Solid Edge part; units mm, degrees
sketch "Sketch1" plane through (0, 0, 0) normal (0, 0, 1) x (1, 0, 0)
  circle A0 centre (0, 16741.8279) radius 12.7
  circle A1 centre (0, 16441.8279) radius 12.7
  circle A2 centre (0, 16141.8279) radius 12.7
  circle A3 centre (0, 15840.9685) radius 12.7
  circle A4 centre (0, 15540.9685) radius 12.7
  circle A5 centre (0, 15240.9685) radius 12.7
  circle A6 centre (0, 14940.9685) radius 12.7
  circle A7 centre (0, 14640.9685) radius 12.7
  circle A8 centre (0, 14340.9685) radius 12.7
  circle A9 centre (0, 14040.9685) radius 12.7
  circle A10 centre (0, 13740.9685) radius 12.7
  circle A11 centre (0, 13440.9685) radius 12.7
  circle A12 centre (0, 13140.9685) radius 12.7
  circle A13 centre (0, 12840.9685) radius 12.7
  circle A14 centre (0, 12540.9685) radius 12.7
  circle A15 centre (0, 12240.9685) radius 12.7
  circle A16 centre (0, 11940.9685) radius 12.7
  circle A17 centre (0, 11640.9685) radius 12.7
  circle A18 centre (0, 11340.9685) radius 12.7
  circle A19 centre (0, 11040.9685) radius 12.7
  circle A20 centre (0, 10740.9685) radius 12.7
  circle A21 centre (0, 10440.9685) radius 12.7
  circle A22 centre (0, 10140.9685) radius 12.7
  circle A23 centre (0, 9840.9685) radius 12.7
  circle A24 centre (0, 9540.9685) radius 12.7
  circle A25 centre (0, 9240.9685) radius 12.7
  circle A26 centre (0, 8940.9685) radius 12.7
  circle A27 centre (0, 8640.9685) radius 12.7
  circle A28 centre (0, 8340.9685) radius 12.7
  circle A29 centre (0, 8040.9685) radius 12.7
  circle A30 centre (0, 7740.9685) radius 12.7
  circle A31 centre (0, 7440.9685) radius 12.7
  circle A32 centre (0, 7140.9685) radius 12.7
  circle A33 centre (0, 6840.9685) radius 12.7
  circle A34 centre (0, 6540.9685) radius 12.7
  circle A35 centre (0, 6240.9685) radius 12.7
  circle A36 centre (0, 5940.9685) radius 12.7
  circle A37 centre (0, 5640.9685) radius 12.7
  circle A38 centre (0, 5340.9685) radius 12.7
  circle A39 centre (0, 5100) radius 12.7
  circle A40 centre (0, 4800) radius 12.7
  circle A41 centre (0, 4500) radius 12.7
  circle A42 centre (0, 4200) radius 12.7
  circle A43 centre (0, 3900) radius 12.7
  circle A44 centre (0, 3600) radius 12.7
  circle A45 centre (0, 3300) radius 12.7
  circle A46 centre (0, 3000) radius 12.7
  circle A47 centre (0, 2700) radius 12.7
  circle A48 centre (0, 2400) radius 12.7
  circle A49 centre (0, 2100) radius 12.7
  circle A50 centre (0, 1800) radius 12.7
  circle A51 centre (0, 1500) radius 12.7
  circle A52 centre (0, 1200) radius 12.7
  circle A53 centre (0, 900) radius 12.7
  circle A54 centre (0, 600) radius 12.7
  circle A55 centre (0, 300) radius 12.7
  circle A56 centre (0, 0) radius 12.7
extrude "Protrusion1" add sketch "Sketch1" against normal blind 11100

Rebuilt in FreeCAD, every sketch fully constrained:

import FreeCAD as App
import Part
import Sketcher

doc = App.newDocument("Part")
params = doc.addObject("Spreadsheet::Sheet", "Params")
for row, (alias, value) in enumerate([
    ("sketch1_diameter", "25.4 mm"),
    ("pad1_length", "11100 mm"),
], start=1):
    params.set(f"A{row}", alias)
    params.set(f"B{row}", "=" + value)
    params.setAlias(f"B{row}", alias)

body = doc.addObject("PartDesign::Body", "Body")
body.AllowCompound = True

sketch1 = body.newObject("Sketcher::SketchObject", "Sketch")
sketch1.AttachmentSupport = (doc.getObject("XY_Plane"), [""])
sketch1.MapMode = "FlatFace"
sketch1.addGeometry(Part.Circle(App.Vector(0, 16742, 0), App.Vector(0, 0, 1), 13), False)
sketch1.addGeometry(Part.Circle(App.Vector(0, 16442, 0), App.Vector(0, 0, 1), 13), False)
sketch1.addGeometry(Part.Circle(App.Vector(0, 16142, 0), App.Vector(0, 0, 1), 13), False)
sketch1.addGeometry(Part.Circle(App.Vector(0, 15841, 0), App.Vector(0, 0, 1), 13), False)
sketch1.addGeometry(Part.Circle(App.Vector(0, 15541, 0), App.Vector(0, 0, 1), 13), False)
sketch1.addGeometry(Part.Circle(App.Vector(0, 15241, 0), App.Vector(0, 0, 1), 13), False)
sketch1.addGeometry(Part.Circle(App.Vector(0, 14941, 0), App.Vector(0, 0, 1), 13), False)
sketch1.addGeometry(Part.Circle(App.Vector(0, 14641, 0), App.Vector(0, 0, 1), 13), False)
sketch1.addGeometry(Part.Circle(App.Vector(0, 14341, 0), App.Vector(0, 0, 1), 13), False)
sketch1.addGeometry(Part.Circle(App.Vector(0, 14041, 0), App.Vector(0, 0, 1), 13), False)
sketch1.addGeometry(Part.Circle(App.Vector(0, 13741, 0), App.Vector(0, 0, 1), 13), False)
sketch1.addGeometry(Part.Circle(App.Vector(0, 13441, 0), App.Vector(0, 0, 1), 13), False)
sketch1.addGeometry(Part.Circle(App.Vector(0, 13141, 0), App.Vector(0, 0, 1), 13), False)
sketch1.addGeometry(Part.Circle(App.Vector(0, 12841, 0), App.Vector(0, 0, 1), 13), False)
sketch1.addGeometry(Part.Circle(App.Vector(0, 12541, 0), App.Vector(0, 0, 1), 13), False)
sketch1.addGeometry(Part.Circle(App.Vector(0, 12241, 0), App.Vector(0, 0, 1), 13), False)
sketch1.addGeometry(Part.Circle(App.Vector(0, 11941, 0), App.Vector(0, 0, 1), 13), False)
sketch1.addGeometry(Part.Circle(App.Vector(0, 11641, 0), App.Vector(0, 0, 1), 13), False)
sketch1.addGeometry(Part.Circle(App.Vector(0, 11341, 0), App.Vector(0, 0, 1), 13), False)
sketch1.addGeometry(Part.Circle(App.Vector(0, 11041, 0), App.Vector(0, 0, 1), 13), False)
sketch1.addGeometry(Part.Circle(App.Vector(0, 10741, 0), App.Vector(0, 0, 1), 13), False)
sketch1.addGeometry(Part.Circle(App.Vector(0, 10441, 0), App.Vector(0, 0, 1), 13), False)
sketch1.addGeometry(Part.Circle(App.Vector(0, 10141, 0), App.Vector(0, 0, 1), 13), False)
sketch1.addGeometry(Part.Circle(App.Vector(0, 9841, 0), App.Vector(0, 0, 1), 13), False)
sketch1.addGeometry(Part.Circle(App.Vector(0, 9541, 0), App.Vector(0, 0, 1), 13), False)
sketch1.addGeometry(Part.Circle(App.Vector(0, 9241, 0), App.Vector(0, 0, 1), 13), False)
sketch1.addGeometry(Part.Circle(App.Vector(0, 8941, 0), App.Vector(0, 0, 1), 13), False)
sketch1.addGeometry(Part.Circle(App.Vector(0, 8641, 0), App.Vector(0, 0, 1), 13), False)
sketch1.addGeometry(Part.Circle(App.Vector(0, 8341, 0), App.Vector(0, 0, 1), 13), False)
sketch1.addGeometry(Part.Circle(App.Vector(0, 8041, 0), App.Vector(0, 0, 1), 13), False)
sketch1.addGeometry(Part.Circle(App.Vector(0, 7741, 0), App.Vector(0, 0, 1), 13), False)
sketch1.addGeometry(Part.Circle(App.Vector(0, 7441, 0), App.Vector(0, 0, 1), 13), False)
sketch1.addGeometry(Part.Circle(App.Vector(0, 7141, 0), App.Vector(0, 0, 1), 13), False)
sketch1.addGeometry(Part.Circle(App.Vector(0, 6841, 0), App.Vector(0, 0, 1), 13), False)
sketch1.addGeometry(Part.Circle(App.Vector(0, 6541, 0), App.Vector(0, 0, 1), 13), False)
sketch1.addGeometry(Part.Circle(App.Vector(0, 6241, 0), App.Vector(0, 0, 1), 13), False)
sketch1.addGeometry(Part.Circle(App.Vector(0, 5941, 0), App.Vector(0, 0, 1), 13), False)
sketch1.addGeometry(Part.Circle(App.Vector(0, 5641, 0), App.Vector(0, 0, 1), 13), False)
sketch1.addGeometry(Part.Circle(App.Vector(0, 5341, 0), App.Vector(0, 0, 1), 13), False)
sketch1.addGeometry(Part.Circle(App.Vector(0, 5100, 0), App.Vector(0, 0, 1), 13), False)
sketch1.addGeometry(Part.Circle(App.Vector(0, 4800, 0), App.Vector(0, 0, 1), 13), False)
sketch1.addGeometry(Part.Circle(App.Vector(0, 4500, 0), App.Vector(0, 0, 1), 13), False)
sketch1.addGeometry(Part.Circle(App.Vector(0, 4200, 0), App.Vector(0, 0, 1), 13), False)
sketch1.addGeometry(Part.Circle(App.Vector(0, 3900, 0), App.Vector(0, 0, 1), 13), False)
sketch1.addGeometry(Part.Circle(App.Vector(0, 3600, 0), App.Vector(0, 0, 1), 13), False)
sketch1.addGeometry(Part.Circle(App.Vector(0, 3300, 0), App.Vector(0, 0, 1), 13), False)
sketch1.addGeometry(Part.Circle(App.Vector(0, 3000, 0), App.Vector(0, 0, 1), 13), False)
sketch1.addGeometry(Part.Circle(App.Vector(0, 2700, 0), App.Vector(0, 0, 1), 13), False)
sketch1.addGeometry(Part.Circle(App.Vector(0, 2400, 0), App.Vector(0, 0, 1), 13), False)
sketch1.addGeometry(Part.Circle(App.Vector(0, 2100, 0), App.Vector(0, 0, 1), 13), False)
sketch1.addGeometry(Part.Circle(App.Vector(0, 1800, 0), App.Vector(0, 0, 1), 13), False)
sketch1.addGeometry(Part.Circle(App.Vector(0, 1500, 0), App.Vector(0, 0, 1), 13), False)
sketch1.addGeometry(Part.Circle(App.Vector(0, 1200, 0), App.Vector(0, 0, 1), 13), False)
sketch1.addGeometry(Part.Circle(App.Vector(0, 900, 0), App.Vector(0, 0, 1), 13), False)
sketch1.addGeometry(Part.Circle(App.Vector(0, 600, 0), App.Vector(0, 0, 1), 13), False)
sketch1.addGeometry(Part.Circle(App.Vector(0, 300, 0), App.Vector(0, 0, 1), 13), False)
sketch1.addGeometry(Part.Circle(App.Vector(0, 0, 0), App.Vector(0, 0, 1), 13), False)
sketch1.addConstraint(Sketcher.Constraint("Coincident", 56, 3, -1, 1))
sketch1.addConstraint(Sketcher.Constraint("Equal", 0, 1))
sketch1.addConstraint(Sketcher.Constraint("Equal", 1, 2))
sketch1.addConstraint(Sketcher.Constraint("Equal", 2, 3))
sketch1.addConstraint(Sketcher.Constraint("Equal", 3, 4))
sketch1.addConstraint(Sketcher.Constraint("Equal", 4, 5))
sketch1.addConstraint(Sketcher.Constraint("Equal", 5, 6))
sketch1.addConstraint(Sketcher.Constraint("Equal", 6, 7))
sketch1.addConstraint(Sketcher.Constraint("Equal", 7, 8))
sketch1.addConstraint(Sketcher.Constraint("Equal", 8, 9))
sketch1.addConstraint(Sketcher.Constraint("Equal", 9, 10))
sketch1.addConstraint(Sketcher.Constraint("Equal", 10, 11))
sketch1.addConstraint(Sketcher.Constraint("Equal", 11, 12))
sketch1.addConstraint(Sketcher.Constraint("Equal", 12, 13))
sketch1.addConstraint(Sketcher.Constraint("Equal", 13, 14))
sketch1.addConstraint(Sketcher.Constraint("Equal", 14, 15))
sketch1.addConstraint(Sketcher.Constraint("Equal", 15, 16))
sketch1.addConstraint(Sketcher.Constraint("Equal", 16, 17))
sketch1.addConstraint(Sketcher.Constraint("Equal", 17, 18))
sketch1.addConstraint(Sketcher.Constraint("Equal", 18, 19))
sketch1.addConstraint(Sketcher.Constraint("Equal", 19, 20))
sketch1.addConstraint(Sketcher.Constraint("Equal", 20, 21))
sketch1.addConstraint(Sketcher.Constraint("Equal", 21, 22))
sketch1.addConstraint(Sketcher.Constraint("Equal", 22, 23))
sketch1.addConstraint(Sketcher.Constraint("Equal", 23, 24))
sketch1.addConstraint(Sketcher.Constraint("Equal", 24, 25))
sketch1.addConstraint(Sketcher.Constraint("Equal", 25, 26))
sketch1.addConstraint(Sketcher.Constraint("Equal", 26, 27))
sketch1.addConstraint(Sketcher.Constraint("Equal", 27, 28))
sketch1.addConstraint(Sketcher.Constraint("Equal", 28, 29))
sketch1.addConstraint(Sketcher.Constraint("Equal", 29, 30))
sketch1.addConstraint(Sketcher.Constraint("Equal", 30, 31))
sketch1.addConstraint(Sketcher.Constraint("Equal", 31, 32))
sketch1.addConstraint(Sketcher.Constraint("Equal", 32, 33))
sketch1.addConstraint(Sketcher.Constraint("Equal", 33, 34))
sketch1.addConstraint(Sketcher.Constraint("Equal", 34, 35))
sketch1.addConstraint(Sketcher.Constraint("Equal", 35, 36))
sketch1.addConstraint(Sketcher.Constraint("Equal", 36, 37))
sketch1.addConstraint(Sketcher.Constraint("Equal", 37, 38))
sketch1.addConstraint(Sketcher.Constraint("Equal", 38, 39))
sketch1.addConstraint(Sketcher.Constraint("Equal", 39, 40))
sketch1.addConstraint(Sketcher.Constraint("Equal", 40, 41))
sketch1.addConstraint(Sketcher.Constraint("Equal", 41, 42))
sketch1.addConstraint(Sketcher.Constraint("Equal", 42, 43))
sketch1.addConstraint(Sketcher.Constraint("Equal", 43, 44))
sketch1.addConstraint(Sketcher.Constraint("Equal", 44, 45))
sketch1.addConstraint(Sketcher.Constraint("Equal", 45, 46))
sketch1.addConstraint(Sketcher.Constraint("Equal", 46, 47))
sketch1.addConstraint(Sketcher.Constraint("Equal", 47, 48))
sketch1.addConstraint(Sketcher.Constraint("Equal", 48, 49))
sketch1.addConstraint(Sketcher.Constraint("Equal", 49, 50))
sketch1.addConstraint(Sketcher.Constraint("Equal", 50, 51))
sketch1.addConstraint(Sketcher.Constraint("Equal", 51, 52))
sketch1.addConstraint(Sketcher.Constraint("Equal", 52, 53))
sketch1.addConstraint(Sketcher.Constraint("Equal", 53, 54))
sketch1.addConstraint(Sketcher.Constraint("Equal", 54, 55))
sketch1.addConstraint(Sketcher.Constraint("Equal", 55, 56))
sketch1.addConstraint(Sketcher.Constraint("PointOnObject", 0, 3, -2))
sketch1.addConstraint(Sketcher.Constraint("PointOnObject", 1, 3, -2))
sketch1.addConstraint(Sketcher.Constraint("PointOnObject", 2, 3, -2))
sketch1.addConstraint(Sketcher.Constraint("PointOnObject", 3, 3, -2))
sketch1.addConstraint(Sketcher.Constraint("PointOnObject", 4, 3, -2))
sketch1.addConstraint(Sketcher.Constraint("PointOnObject", 5, 3, -2))
sketch1.addConstraint(Sketcher.Constraint("PointOnObject", 6, 3, -2))
sketch1.addConstraint(Sketcher.Constraint("PointOnObject", 7, 3, -2))
sketch1.addConstraint(Sketcher.Constraint("PointOnObject", 8, 3, -2))
sketch1.addConstraint(Sketcher.Constraint("PointOnObject", 9, 3, -2))
sketch1.addConstraint(Sketcher.Constraint("PointOnObject", 10, 3, -2))
sketch1.addConstraint(Sketcher.Constraint("PointOnObject", 11, 3, -2))
sketch1.addConstraint(Sketcher.Constraint("PointOnObject", 12, 3, -2))
sketch1.addConstraint(Sketcher.Constraint("PointOnObject", 13, 3, -2))
sketch1.addConstraint(Sketcher.Constraint("PointOnObject", 14, 3, -2))
sketch1.addConstraint(Sketcher.Constraint("PointOnObject", 15, 3, -2))
sketch1.addConstraint(Sketcher.Constraint("PointOnObject", 16, 3, -2))
sketch1.addConstraint(Sketcher.Constraint("PointOnObject", 17, 3, -2))
sketch1.addConstraint(Sketcher.Constraint("PointOnObject", 18, 3, -2))
sketch1.addConstraint(Sketcher.Constraint("PointOnObject", 19, 3, -2))
sketch1.addConstraint(Sketcher.Constraint("PointOnObject", 20, 3, -2))
sketch1.addConstraint(Sketcher.Constraint("PointOnObject", 21, 3, -2))
sketch1.addConstraint(Sketcher.Constraint("PointOnObject", 22, 3, -2))
sketch1.addConstraint(Sketcher.Constraint("PointOnObject", 23, 3, -2))
sketch1.addConstraint(Sketcher.Constraint("PointOnObject", 24, 3, -2))
sketch1.addConstraint(Sketcher.Constraint("PointOnObject", 25, 3, -2))
sketch1.addConstraint(Sketcher.Constraint("PointOnObject", 26, 3, -2))
sketch1.addConstraint(Sketcher.Constraint("PointOnObject", 27, 3, -2))
sketch1.addConstraint(Sketcher.Constraint("PointOnObject", 28, 3, -2))
sketch1.addConstraint(Sketcher.Constraint("PointOnObject", 29, 3, -2))
sketch1.addConstraint(Sketcher.Constraint("PointOnObject", 30, 3, -2))
sketch1.addConstraint(Sketcher.Constraint("PointOnObject", 31, 3, -2))
sketch1.addConstraint(Sketcher.Constraint("PointOnObject", 32, 3, -2))
sketch1.addConstraint(Sketcher.Constraint("PointOnObject", 33, 3, -2))
sketch1.addConstraint(Sketcher.Constraint("PointOnObject", 34, 3, -2))
sketch1.addConstraint(Sketcher.Constraint("PointOnObject", 35, 3, -2))
sketch1.addConstraint(Sketcher.Constraint("PointOnObject", 36, 3, -2))
sketch1.addConstraint(Sketcher.Constraint("PointOnObject", 37, 3, -2))
sketch1.addConstraint(Sketcher.Constraint("PointOnObject", 38, 3, -2))
sketch1.addConstraint(Sketcher.Constraint("PointOnObject", 39, 3, -2))
sketch1.addConstraint(Sketcher.Constraint("PointOnObject", 40, 3, -2))
sketch1.addConstraint(Sketcher.Constraint("PointOnObject", 41, 3, -2))
sketch1.addConstraint(Sketcher.Constraint("PointOnObject", 42, 3, -2))
sketch1.addConstraint(Sketcher.Constraint("PointOnObject", 43, 3, -2))
sketch1.addConstraint(Sketcher.Constraint("PointOnObject", 44, 3, -2))
sketch1.addConstraint(Sketcher.Constraint("PointOnObject", 45, 3, -2))
sketch1.addConstraint(Sketcher.Constraint("PointOnObject", 46, 3, -2))
sketch1.addConstraint(Sketcher.Constraint("PointOnObject", 47, 3, -2))
sketch1.addConstraint(Sketcher.Constraint("PointOnObject", 48, 3, -2))
sketch1.addConstraint(Sketcher.Constraint("PointOnObject", 49, 3, -2))
sketch1.addConstraint(Sketcher.Constraint("PointOnObject", 50, 3, -2))
sketch1.addConstraint(Sketcher.Constraint("PointOnObject", 51, 3, -2))
sketch1.addConstraint(Sketcher.Constraint("PointOnObject", 52, 3, -2))
sketch1.addConstraint(Sketcher.Constraint("PointOnObject", 53, 3, -2))
sketch1.addConstraint(Sketcher.Constraint("PointOnObject", 54, 3, -2))
sketch1.addConstraint(Sketcher.Constraint("PointOnObject", 55, 3, -2))
sketch1.addConstraint(Sketcher.Constraint("Diameter", 0, 25.4))
sketch1.addConstraint(Sketcher.Constraint("DistanceY", -1, 1, 39, 3, 5100.0))
sketch1.addConstraint(Sketcher.Constraint("DistanceY", -1, 1, 40, 3, 4800.0))
sketch1.addConstraint(Sketcher.Constraint("DistanceY", -1, 1, 41, 3, 4500.0))
sketch1.addConstraint(Sketcher.Constraint("DistanceY", -1, 1, 42, 3, 4200.0))
sketch1.addConstraint(Sketcher.Constraint("DistanceY", -1, 1, 43, 3, 3900.0))
sketch1.addConstraint(Sketcher.Constraint("DistanceY", -1, 1, 44, 3, 3600.0))
sketch1.addConstraint(Sketcher.Constraint("DistanceY", -1, 1, 45, 3, 3300.0))
sketch1.addConstraint(Sketcher.Constraint("DistanceY", -1, 1, 46, 3, 3000.0))
sketch1.addConstraint(Sketcher.Constraint("DistanceY", -1, 1, 47, 3, 2700.0))
sketch1.addConstraint(Sketcher.Constraint("DistanceY", -1, 1, 48, 3, 2400.0))
sketch1.addConstraint(Sketcher.Constraint("DistanceY", -1, 1, 49, 3, 2100.0))
sketch1.addConstraint(Sketcher.Constraint("DistanceY", -1, 1, 50, 3, 1800.0))
sketch1.addConstraint(Sketcher.Constraint("DistanceY", -1, 1, 51, 3, 1500.0))
sketch1.addConstraint(Sketcher.Constraint("DistanceY", -1, 1, 52, 3, 1200.0))
sketch1.addConstraint(Sketcher.Constraint("DistanceY", -1, 1, 53, 3, 900.0))
sketch1.addConstraint(Sketcher.Constraint("DistanceY", -1, 1, 54, 3, 600.0))
sketch1.addConstraint(Sketcher.Constraint("DistanceY", -1, 1, 55, 3, 300.0))
sketch1.addConstraint(Sketcher.Constraint("DistanceY", 1, 3, 0, 3, 300.0))
sketch1.addConstraint(Sketcher.Constraint("DistanceY", 2, 3, 1, 3, 300.0))
sketch1.addConstraint(Sketcher.Constraint("DistanceY", 4, 3, 3, 3, 300.0))
sketch1.addConstraint(Sketcher.Constraint("DistanceY", 5, 3, 4, 3, 300.0))
sketch1.addConstraint(Sketcher.Constraint("DistanceY", 6, 3, 5, 3, 300.0))
sketch1.addConstraint(Sketcher.Constraint("DistanceY", 7, 3, 6, 3, 300.0))
sketch1.addConstraint(Sketcher.Constraint("DistanceY", 8, 3, 7, 3, 300.0))
sketch1.addConstraint(Sketcher.Constraint("DistanceY", 9, 3, 8, 3, 300.0))
sketch1.addConstraint(Sketcher.Constraint("DistanceY", 10, 3, 9, 3, 300.0))
sketch1.addConstraint(Sketcher.Constraint("DistanceY", 11, 3, 10, 3, 300.0))
sketch1.addConstraint(Sketcher.Constraint("DistanceY", 12, 3, 11, 3, 300.0))
sketch1.addConstraint(Sketcher.Constraint("DistanceY", 13, 3, 12, 3, 300.0))
sketch1.addConstraint(Sketcher.Constraint("DistanceY", 14, 3, 13, 3, 300.0))
sketch1.addConstraint(Sketcher.Constraint("DistanceY", 15, 3, 14, 3, 300.0))
sketch1.addConstraint(Sketcher.Constraint("DistanceY", 16, 3, 15, 3, 300.0))
sketch1.addConstraint(Sketcher.Constraint("DistanceY", 17, 3, 16, 3, 300.0))
sketch1.addConstraint(Sketcher.Constraint("DistanceY", 18, 3, 17, 3, 300.0))
sketch1.addConstraint(Sketcher.Constraint("DistanceY", 19, 3, 18, 3, 300.0))
sketch1.addConstraint(Sketcher.Constraint("DistanceY", 20, 3, 19, 3, 300.0))
sketch1.addConstraint(Sketcher.Constraint("DistanceY", 21, 3, 20, 3, 300.0))
sketch1.addConstraint(Sketcher.Constraint("DistanceY", 22, 3, 21, 3, 300.0))
sketch1.addConstraint(Sketcher.Constraint("DistanceY", 23, 3, 22, 3, 300.0))
sketch1.addConstraint(Sketcher.Constraint("DistanceY", 24, 3, 23, 3, 300.0))
sketch1.addConstraint(Sketcher.Constraint("DistanceY", 25, 3, 24, 3, 300.0))
sketch1.addConstraint(Sketcher.Constraint("DistanceY", 26, 3, 25, 3, 300.0))
sketch1.addConstraint(Sketcher.Constraint("DistanceY", 27, 3, 26, 3, 300.0))
sketch1.addConstraint(Sketcher.Constraint("DistanceY", 28, 3, 27, 3, 300.0))
sketch1.addConstraint(Sketcher.Constraint("DistanceY", 29, 3, 28, 3, 300.0))
sketch1.addConstraint(Sketcher.Constraint("DistanceY", 30, 3, 29, 3, 300.0))
sketch1.addConstraint(Sketcher.Constraint("DistanceY", 31, 3, 30, 3, 300.0))
sketch1.addConstraint(Sketcher.Constraint("DistanceY", 32, 3, 31, 3, 300.0))
sketch1.addConstraint(Sketcher.Constraint("DistanceY", 33, 3, 32, 3, 300.0))
sketch1.addConstraint(Sketcher.Constraint("DistanceY", 34, 3, 33, 3, 300.0))
sketch1.addConstraint(Sketcher.Constraint("DistanceY", 35, 3, 34, 3, 300.0))
sketch1.addConstraint(Sketcher.Constraint("DistanceY", 36, 3, 35, 3, 300.0))
sketch1.addConstraint(Sketcher.Constraint("DistanceY", 37, 3, 36, 3, 300.0))
sketch1.addConstraint(Sketcher.Constraint("DistanceY", 38, 3, 37, 3, 300.0))
sketch1.addConstraint(Sketcher.Constraint("DistanceY", -1, 1, 0, 3, 16741.828))
sketch1.addConstraint(Sketcher.Constraint("DistanceY", -1, 1, 3, 3, 15840.9685))
sketch1.setExpression("Constraints[113]", "Params.sketch1_diameter")
pad1 = body.newObject("PartDesign::Pad", "Pad")
pad1.Profile = sketch1
pad1.setExpression("Length", "Params.pad1_length")
pad1.Reversed = True

doc.recompute()
